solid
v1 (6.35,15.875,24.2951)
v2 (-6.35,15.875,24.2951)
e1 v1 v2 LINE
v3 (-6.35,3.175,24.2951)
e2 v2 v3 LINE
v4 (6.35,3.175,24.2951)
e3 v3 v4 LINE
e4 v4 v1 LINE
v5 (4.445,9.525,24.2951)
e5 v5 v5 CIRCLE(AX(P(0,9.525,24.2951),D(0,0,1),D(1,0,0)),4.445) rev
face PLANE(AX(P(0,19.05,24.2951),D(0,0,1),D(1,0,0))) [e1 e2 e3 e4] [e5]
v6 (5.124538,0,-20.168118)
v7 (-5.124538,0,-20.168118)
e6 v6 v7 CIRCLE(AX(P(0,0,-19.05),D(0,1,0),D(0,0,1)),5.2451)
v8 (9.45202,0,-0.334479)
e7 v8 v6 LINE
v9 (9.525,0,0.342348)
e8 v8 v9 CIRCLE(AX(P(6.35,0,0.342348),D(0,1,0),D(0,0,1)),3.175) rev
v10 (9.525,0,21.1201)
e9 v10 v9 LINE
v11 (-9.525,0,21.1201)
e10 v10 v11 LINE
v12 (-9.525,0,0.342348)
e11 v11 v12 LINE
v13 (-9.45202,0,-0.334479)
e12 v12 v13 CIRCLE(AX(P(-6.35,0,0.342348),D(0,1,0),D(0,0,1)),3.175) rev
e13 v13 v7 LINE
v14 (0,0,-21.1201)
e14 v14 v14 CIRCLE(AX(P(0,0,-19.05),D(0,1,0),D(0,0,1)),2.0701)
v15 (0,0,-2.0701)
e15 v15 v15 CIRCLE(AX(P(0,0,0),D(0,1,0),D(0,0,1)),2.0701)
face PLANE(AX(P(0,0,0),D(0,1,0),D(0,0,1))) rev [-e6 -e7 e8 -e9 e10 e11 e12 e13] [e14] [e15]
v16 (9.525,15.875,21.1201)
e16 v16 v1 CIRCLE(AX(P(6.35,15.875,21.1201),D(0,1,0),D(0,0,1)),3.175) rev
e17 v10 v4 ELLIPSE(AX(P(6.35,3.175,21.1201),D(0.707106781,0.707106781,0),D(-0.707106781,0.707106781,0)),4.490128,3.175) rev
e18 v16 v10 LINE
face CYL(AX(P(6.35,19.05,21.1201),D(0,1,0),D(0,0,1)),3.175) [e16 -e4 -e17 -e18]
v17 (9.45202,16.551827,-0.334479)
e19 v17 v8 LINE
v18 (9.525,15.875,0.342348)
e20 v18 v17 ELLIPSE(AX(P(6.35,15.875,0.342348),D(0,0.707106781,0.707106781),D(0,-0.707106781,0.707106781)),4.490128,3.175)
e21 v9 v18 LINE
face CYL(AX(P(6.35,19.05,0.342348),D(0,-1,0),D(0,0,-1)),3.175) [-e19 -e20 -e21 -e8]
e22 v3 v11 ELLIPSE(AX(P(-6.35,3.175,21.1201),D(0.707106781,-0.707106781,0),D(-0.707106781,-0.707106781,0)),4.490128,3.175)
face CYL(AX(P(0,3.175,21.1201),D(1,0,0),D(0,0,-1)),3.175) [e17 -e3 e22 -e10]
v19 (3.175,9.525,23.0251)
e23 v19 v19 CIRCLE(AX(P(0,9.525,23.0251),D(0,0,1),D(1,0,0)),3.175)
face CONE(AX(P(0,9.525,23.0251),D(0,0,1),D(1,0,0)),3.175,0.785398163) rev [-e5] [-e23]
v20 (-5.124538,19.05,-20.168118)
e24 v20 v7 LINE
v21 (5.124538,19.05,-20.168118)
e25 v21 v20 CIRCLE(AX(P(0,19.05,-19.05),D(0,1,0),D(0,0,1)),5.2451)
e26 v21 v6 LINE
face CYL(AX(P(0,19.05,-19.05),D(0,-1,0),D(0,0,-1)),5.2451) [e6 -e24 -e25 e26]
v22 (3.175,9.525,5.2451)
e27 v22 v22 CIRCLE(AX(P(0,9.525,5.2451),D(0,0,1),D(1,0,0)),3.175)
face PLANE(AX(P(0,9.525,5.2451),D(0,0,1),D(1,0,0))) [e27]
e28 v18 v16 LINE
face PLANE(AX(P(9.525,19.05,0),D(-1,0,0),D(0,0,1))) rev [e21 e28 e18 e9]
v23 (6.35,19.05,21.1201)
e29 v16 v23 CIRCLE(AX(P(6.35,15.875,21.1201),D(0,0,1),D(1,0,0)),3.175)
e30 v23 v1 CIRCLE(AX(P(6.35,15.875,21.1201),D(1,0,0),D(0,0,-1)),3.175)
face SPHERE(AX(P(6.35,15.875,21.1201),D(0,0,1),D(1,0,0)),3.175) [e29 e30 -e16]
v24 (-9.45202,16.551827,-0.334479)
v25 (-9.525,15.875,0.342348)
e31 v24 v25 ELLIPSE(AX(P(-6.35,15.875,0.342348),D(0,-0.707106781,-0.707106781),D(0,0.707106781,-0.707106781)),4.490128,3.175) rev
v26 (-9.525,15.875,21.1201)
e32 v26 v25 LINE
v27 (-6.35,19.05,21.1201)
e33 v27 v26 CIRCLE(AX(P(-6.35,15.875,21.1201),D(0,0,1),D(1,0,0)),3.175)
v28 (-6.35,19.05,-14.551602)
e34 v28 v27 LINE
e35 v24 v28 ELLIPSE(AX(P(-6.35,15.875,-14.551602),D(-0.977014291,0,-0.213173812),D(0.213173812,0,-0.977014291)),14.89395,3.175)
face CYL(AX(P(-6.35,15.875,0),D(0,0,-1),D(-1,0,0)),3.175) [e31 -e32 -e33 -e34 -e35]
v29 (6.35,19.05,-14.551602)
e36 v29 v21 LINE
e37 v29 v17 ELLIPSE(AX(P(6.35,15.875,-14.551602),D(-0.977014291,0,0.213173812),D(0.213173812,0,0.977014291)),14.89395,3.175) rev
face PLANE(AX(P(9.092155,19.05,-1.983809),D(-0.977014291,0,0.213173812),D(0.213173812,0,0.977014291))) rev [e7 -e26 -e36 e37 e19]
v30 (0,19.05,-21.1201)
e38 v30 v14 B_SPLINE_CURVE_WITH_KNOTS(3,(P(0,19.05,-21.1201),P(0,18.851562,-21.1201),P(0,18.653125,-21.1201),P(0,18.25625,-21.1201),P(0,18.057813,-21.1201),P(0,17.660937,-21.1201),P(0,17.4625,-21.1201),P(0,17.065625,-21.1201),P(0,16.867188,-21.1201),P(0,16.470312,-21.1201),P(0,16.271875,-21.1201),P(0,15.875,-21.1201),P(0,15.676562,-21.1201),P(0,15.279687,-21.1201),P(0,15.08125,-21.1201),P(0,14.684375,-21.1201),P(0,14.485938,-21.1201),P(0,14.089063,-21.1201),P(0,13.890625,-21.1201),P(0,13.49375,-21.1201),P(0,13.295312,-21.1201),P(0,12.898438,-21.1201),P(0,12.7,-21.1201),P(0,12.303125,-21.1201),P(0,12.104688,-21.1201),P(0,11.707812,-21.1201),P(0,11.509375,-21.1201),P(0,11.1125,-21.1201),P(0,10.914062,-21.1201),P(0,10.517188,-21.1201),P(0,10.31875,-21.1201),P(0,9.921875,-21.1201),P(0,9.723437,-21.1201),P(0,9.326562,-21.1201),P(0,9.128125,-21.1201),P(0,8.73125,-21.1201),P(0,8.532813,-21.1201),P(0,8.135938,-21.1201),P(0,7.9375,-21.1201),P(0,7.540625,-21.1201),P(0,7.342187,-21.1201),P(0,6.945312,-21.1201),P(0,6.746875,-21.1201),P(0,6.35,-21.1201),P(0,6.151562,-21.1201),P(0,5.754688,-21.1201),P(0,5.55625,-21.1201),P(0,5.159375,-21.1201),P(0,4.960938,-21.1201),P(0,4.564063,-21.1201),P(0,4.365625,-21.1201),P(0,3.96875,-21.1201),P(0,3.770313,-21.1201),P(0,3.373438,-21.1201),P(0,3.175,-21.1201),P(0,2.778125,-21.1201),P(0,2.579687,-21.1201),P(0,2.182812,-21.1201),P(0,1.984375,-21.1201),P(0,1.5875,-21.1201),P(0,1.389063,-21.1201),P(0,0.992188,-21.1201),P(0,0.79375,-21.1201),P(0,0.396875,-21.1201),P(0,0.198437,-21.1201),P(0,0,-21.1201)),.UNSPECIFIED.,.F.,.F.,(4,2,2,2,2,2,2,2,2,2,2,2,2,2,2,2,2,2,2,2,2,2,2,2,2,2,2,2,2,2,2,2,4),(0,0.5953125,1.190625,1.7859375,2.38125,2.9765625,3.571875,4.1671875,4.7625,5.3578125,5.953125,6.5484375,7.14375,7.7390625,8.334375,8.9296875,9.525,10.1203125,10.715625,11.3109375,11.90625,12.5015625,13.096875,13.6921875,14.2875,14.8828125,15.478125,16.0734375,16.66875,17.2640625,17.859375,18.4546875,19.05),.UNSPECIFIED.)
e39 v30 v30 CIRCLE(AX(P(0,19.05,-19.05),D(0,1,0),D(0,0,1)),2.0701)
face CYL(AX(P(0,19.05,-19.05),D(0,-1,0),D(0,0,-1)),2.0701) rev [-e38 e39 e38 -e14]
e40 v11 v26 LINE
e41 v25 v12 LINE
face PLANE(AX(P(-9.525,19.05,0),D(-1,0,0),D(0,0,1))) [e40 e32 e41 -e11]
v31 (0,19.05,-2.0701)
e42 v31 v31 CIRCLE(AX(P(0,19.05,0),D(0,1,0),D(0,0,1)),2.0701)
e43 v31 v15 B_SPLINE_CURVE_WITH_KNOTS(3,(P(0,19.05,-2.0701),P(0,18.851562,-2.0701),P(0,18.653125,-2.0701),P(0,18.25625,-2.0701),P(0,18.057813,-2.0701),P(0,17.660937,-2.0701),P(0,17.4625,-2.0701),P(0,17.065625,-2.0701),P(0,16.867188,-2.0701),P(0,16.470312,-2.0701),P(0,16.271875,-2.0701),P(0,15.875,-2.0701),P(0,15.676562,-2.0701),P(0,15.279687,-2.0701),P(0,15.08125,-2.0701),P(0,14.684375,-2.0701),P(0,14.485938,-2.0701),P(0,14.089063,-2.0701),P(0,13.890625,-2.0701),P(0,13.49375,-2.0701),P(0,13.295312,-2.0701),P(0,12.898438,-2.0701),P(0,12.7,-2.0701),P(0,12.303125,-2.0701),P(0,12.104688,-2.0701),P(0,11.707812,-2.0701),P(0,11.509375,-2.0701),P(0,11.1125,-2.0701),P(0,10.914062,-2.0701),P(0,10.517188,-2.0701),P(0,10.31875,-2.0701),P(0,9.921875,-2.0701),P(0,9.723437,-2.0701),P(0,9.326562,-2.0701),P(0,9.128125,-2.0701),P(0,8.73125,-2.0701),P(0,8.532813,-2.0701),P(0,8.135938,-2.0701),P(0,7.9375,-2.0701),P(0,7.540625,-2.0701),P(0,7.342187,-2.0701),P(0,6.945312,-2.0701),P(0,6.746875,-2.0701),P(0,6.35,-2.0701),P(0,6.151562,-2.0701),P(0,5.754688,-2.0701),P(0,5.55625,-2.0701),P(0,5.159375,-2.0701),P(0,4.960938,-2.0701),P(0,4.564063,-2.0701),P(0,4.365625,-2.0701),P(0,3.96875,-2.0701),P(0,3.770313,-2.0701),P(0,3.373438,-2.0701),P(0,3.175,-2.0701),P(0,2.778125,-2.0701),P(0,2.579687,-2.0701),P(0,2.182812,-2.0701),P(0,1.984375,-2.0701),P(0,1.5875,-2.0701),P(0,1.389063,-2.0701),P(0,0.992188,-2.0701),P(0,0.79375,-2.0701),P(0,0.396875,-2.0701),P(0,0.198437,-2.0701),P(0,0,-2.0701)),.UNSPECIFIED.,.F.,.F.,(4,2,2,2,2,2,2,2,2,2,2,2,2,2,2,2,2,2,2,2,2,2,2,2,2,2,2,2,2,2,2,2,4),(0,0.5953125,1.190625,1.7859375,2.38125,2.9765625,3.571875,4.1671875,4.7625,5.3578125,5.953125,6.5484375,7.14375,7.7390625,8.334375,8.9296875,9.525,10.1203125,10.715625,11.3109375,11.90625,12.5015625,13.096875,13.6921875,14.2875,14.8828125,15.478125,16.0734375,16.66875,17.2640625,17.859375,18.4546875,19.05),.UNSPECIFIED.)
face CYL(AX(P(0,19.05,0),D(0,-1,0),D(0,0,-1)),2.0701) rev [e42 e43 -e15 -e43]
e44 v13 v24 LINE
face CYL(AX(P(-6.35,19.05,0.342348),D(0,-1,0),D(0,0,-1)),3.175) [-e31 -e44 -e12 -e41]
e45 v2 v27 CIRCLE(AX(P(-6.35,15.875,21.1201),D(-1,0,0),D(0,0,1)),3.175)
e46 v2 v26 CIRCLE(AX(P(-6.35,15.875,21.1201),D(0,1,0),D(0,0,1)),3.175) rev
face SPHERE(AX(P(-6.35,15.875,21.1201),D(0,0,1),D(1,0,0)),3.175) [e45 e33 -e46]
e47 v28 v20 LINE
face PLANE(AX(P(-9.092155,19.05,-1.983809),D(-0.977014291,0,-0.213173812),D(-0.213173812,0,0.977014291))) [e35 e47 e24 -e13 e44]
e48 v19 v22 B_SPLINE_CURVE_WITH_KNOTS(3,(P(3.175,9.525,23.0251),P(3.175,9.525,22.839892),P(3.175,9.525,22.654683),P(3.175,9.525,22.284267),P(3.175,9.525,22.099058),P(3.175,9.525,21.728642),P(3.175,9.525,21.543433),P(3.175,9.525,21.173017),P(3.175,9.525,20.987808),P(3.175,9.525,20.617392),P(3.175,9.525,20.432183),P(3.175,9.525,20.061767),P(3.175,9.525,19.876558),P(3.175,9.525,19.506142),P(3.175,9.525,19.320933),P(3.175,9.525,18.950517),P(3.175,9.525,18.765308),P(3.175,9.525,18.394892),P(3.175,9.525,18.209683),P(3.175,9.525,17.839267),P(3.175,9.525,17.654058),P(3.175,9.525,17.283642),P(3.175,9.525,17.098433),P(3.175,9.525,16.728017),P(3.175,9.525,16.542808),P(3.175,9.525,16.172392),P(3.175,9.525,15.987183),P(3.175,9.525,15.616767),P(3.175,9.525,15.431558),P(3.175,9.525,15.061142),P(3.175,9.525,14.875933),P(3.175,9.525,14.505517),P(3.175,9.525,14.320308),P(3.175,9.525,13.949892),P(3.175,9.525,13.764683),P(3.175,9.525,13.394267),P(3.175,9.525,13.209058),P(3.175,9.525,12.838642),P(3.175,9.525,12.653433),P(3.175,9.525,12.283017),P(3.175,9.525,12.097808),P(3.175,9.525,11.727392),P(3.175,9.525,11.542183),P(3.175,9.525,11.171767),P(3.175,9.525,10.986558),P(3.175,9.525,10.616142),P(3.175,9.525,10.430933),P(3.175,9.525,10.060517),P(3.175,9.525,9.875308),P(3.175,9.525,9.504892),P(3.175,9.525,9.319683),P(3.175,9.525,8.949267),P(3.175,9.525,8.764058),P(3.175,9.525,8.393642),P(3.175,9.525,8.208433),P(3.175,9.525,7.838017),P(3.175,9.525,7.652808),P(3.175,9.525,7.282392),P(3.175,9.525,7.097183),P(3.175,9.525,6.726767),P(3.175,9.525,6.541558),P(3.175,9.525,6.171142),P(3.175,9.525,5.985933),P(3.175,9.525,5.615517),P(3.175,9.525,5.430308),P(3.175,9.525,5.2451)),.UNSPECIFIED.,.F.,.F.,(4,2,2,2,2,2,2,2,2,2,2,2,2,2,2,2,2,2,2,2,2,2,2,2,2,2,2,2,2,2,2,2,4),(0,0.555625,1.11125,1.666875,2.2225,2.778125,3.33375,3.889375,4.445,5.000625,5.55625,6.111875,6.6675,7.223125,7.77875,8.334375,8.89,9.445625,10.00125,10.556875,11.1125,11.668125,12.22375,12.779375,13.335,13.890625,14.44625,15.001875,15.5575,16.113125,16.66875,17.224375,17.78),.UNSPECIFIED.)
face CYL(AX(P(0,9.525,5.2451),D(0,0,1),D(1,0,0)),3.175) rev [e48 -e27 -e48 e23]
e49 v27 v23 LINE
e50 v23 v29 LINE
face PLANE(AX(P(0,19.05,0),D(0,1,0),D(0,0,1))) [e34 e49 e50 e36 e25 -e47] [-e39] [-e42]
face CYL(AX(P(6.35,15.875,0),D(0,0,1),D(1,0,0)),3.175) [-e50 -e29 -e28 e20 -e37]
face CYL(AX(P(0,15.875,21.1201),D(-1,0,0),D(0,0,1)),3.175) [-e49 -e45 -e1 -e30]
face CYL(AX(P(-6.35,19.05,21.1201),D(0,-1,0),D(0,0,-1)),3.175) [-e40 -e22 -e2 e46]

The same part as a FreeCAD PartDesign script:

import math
import FreeCAD as App
import Part
import Sketcher
from FreeCAD import Vector
Q = App.Units.Quantity


def edges_at(feature, points):
    """Names of the edges that pass closest to the given points."""
    edges = feature.Shape.Edges
    near = lambda p: min(range(len(edges)), key=lambda i: edges[i].distToShape(Part.Vertex(*p))[0])
    return sorted({f"Edge{near(p) + 1}" for p in points})

doc = App.newDocument("Part")
body = doc.addObject("PartDesign::Body", "Body")

sketch1 = body.newObject("Sketcher::SketchObject", "Sketch")
sketch1.AttachmentSupport = (doc.getObject("XZ_Plane"), [""])
sketch1.MapMode = "FlatFace"
sketch1.addGeometry([
    Part.LineSegment(Vector(-9.5, 24.3, 0), Vector(9.5, 24.3, 0)),
    Part.LineSegment(Vector(9.5, 24.3, 0), Vector(9.5, 0, 0)),
    Part.LineSegment(Vector(9.5, 0, 0), Vector(5.1, -20.2, 0)),
    Part.ArcOfCircle(Part.Circle(Vector(0, -19.1, 0), Vector(0, 0, 1), 5.2), math.radians(-168), math.radians(-12)),
    Part.LineSegment(Vector(-5.1, -20.2, 0), Vector(-9.5, 0, 0)),
    Part.LineSegment(Vector(-9.5, 0, 0), Vector(-9.5, 24.3, 0)),
    Part.Circle(Vector(0, 0, 0), Vector(0, 0, 1), 2.1),
    Part.Circle(Vector(0, -19.1, 0), Vector(0, 0, 1), 2.1),
], False)
sketch1.addConstraint([
    Sketcher.Constraint("Coincident", 0, 2, 1, 1),
    Sketcher.Constraint("Coincident", 1, 2, 2, 1),
    Sketcher.Constraint("Tangent", 2, 2, 3, 2),
    Sketcher.Constraint("Tangent", 3, 1, 4, 1),
    Sketcher.Constraint("Coincident", 4, 2, 5, 1),
    Sketcher.Constraint("Coincident", 5, 2, 0, 1),
    Sketcher.Constraint("Horizontal", 0),
    Sketcher.Constraint("Vertical", 1),
    Sketcher.Constraint("Vertical", 5),
    Sketcher.Constraint("Coincident", 6, 3, -1, 1),
    Sketcher.Constraint("Coincident", 7, 3, 3, 3),
    Sketcher.Constraint("Equal", 6, 7),
    Sketcher.Constraint("Symmetric", 1, 2, 4, 2, -1, 1),
    Sketcher.Constraint("Symmetric", 2, 2, 3, 1, -2),
    Sketcher.Constraint("Diameter", 6, Q("0.163 in")),
    Sketcher.Constraint("DistanceX", 0, 1, 0, 2, Q("0.75 in")),
    Sketcher.Constraint("Radius", 3, Q("0.2065 in")),
    Sketcher.Constraint("DistanceY", 3, 3, -1, 1, Q("0.75 in")),
    Sketcher.Constraint("DistanceY", 1, 2, 1, 1, Q("0.9565 in")),
])
pad1 = body.newObject("PartDesign::Pad", "Pad")
pad1.Profile = sketch1
pad1.Length = Q("0.75 in")
pad1.Reversed = True

sketch2 = body.newObject("Sketcher::SketchObject", "Sketch001")
sketch2.AttachmentSupport = (doc.getObject("XY_Plane"), [""])
sketch2.MapMode = "FlatFace"
sketch2.AttachmentOffset = App.Placement(Vector(0, 0, 0.9565 * 25.4), App.Rotation())
sketch2.addGeometry(Part.Circle(Vector(0, 9.5, 0), Vector(0, 0, 1), 3.2), False)
sketch2.addConstraint([
    Sketcher.Constraint("PointOnObject", 0, 3, -2),
    Sketcher.Constraint("Diameter", 0, Q("0.25 in")),
    Sketcher.Constraint("DistanceY", -1, 1, 0, 3, Q("0.375 in")),
])
pocket1 = body.newObject("PartDesign::Pocket", "Pocket")
pocket1.Profile = sketch2
pocket1.Length = Q("0.75 in")
doc.recompute()

chamfer = body.newObject("PartDesign::Chamfer", "Chamfer")
chamfer.Base = (pocket1, edges_at(pocket1, [(-3.175, 9.525, 24.295)]))
chamfer.Size = Q("0.05 in")
doc.recompute()

fillet = body.newObject("PartDesign::Fillet", "Fillet")
fillet.Base = (chamfer, edges_at(chamfer, [
    (9.525, 9.525, 0),
    (9.525, 9.525, 24.295),
    (-9.525, 9.525, 24.295),
    (-9.525, 9.525, 0),
    (-9.525, 19.05, 12.148),
    (0, 19.05, 24.295),
    (9.525, 19.05, 12.148),
    (0, 0, 24.295),
]))
fillet.Radius = Q("0.125 in")

doc.recompute()
